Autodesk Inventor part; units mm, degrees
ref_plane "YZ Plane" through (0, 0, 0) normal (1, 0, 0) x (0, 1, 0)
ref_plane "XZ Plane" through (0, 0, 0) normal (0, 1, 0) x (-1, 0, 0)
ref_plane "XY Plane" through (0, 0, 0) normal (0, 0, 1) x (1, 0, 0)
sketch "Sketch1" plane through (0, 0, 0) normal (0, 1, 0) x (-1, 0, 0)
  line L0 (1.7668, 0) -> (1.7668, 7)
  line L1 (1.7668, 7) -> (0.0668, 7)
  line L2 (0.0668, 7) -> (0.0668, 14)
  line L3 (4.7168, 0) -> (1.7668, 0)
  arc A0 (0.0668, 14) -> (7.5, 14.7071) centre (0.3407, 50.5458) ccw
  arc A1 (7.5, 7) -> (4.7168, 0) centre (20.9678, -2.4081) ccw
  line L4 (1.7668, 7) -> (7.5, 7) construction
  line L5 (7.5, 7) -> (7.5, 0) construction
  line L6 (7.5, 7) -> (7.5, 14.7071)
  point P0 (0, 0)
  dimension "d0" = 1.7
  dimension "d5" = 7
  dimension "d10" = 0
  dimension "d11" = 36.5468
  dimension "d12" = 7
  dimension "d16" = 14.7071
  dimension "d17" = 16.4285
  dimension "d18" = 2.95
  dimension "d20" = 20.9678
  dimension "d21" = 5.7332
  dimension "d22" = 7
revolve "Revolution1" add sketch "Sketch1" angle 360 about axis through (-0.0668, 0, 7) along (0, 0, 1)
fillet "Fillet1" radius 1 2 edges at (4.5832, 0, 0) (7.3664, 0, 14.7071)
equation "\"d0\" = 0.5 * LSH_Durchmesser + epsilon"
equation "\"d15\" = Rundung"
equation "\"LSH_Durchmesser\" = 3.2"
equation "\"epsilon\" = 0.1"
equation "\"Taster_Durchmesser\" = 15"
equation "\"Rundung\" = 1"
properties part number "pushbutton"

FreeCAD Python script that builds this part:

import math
import FreeCAD as App
import Part
import Sketcher

V = App.Vector


def edges_at(feature, points):
    """Names of the edges that pass closest to the given points."""
    edges = feature.Shape.Edges
    near = lambda p: min(range(len(edges)), key=lambda i: edges[i].distToShape(Part.Vertex(*p))[0])
    return sorted({f"Edge{near(p) + 1}" for p in points})

doc = App.newDocument("Part")
body = doc.addObject("PartDesign::Body", "Body")

# Sketch on XZ plane
sketch1 = body.newObject("Sketcher::SketchObject", "Sketch")
sketch1.AttachmentSupport = (doc.getObject("XZ_Plane"), [""])
sketch1.MapMode = "FlatFace"
sketch1.addGeometry(Part.LineSegment(V(-1.8, 7, 0), V(-1.8, 0, 0)), False)
sketch1.addGeometry(Part.LineSegment(V(-1.8, 0, 0), V(-4.7, 0, 0)), False)
sketch1.addGeometry(Part.ArcOfCircle(Part.Circle(V(-21, -2.4, 0), V(0, 0, 1), 16.4), math.radians(8), math.radians(35)), False)
sketch1.addGeometry(Part.LineSegment(V(-7.5, 7, 0), V(-7.5, 14.7, 0)), False)
sketch1.addGeometry(Part.ArcOfCircle(Part.Circle(V(-0.3, 50.5, 0), V(0, 0, 1), 36.5), math.radians(-101.3), math.radians(-89.57)), False)
sketch1.addGeometry(Part.LineSegment(V(-0.1, 14, 0), V(-0.1, 7, 0)), False)
sketch1.addGeometry(Part.LineSegment(V(-0.1, 7, 0), V(-1.8, 7, 0)), False)
sketch1.addGeometry(Part.LineSegment(V(-0.1, -2.4, 0), V(-0.1, 50.5, 0)), True)  # axis
sketch1.addConstraint(Sketcher.Constraint("Coincident", 0, 2, 1, 1))
sketch1.addConstraint(Sketcher.Constraint("Coincident", 1, 2, 2, 1))
sketch1.addConstraint(Sketcher.Constraint("Coincident", 2, 2, 3, 1))
sketch1.addConstraint(Sketcher.Constraint("Coincident", 3, 2, 4, 1))
sketch1.addConstraint(Sketcher.Constraint("Coincident", 4, 2, 5, 1))
sketch1.addConstraint(Sketcher.Constraint("Coincident", 5, 2, 6, 1))
sketch1.addConstraint(Sketcher.Constraint("Coincident", 6, 2, 0, 1))
sketch1.addConstraint(Sketcher.Constraint("Vertical", 0))
sketch1.addConstraint(Sketcher.Constraint("Horizontal", 1))
sketch1.addConstraint(Sketcher.Constraint("Vertical", 3))
sketch1.addConstraint(Sketcher.Constraint("Vertical", 5))
sketch1.addConstraint(Sketcher.Constraint("Horizontal", 6))
sketch1.addConstraint(Sketcher.Constraint("Vertical", 7))
sketch1.addConstraint(Sketcher.Constraint("PointOnObject", 0, 2, -1))
sketch1.addConstraint(Sketcher.Constraint("Horizontal", 2, 2, 5, 2))
sketch1.addConstraint(Sketcher.Constraint("Horizontal", 2, 3, 7, 1))
sketch1.addConstraint(Sketcher.Constraint("Horizontal", 4, 3, 7, 2))
sketch1.addConstraint(Sketcher.Constraint("Vertical", 5, 2, 7, 1))
sketch1.addConstraint(Sketcher.Constraint("Equal", 0, 5))
sketch1.addConstraint(Sketcher.Constraint("DistanceY", 0, 2, 0, 1, 7.0))
sketch1.addConstraint(Sketcher.Constraint("DistanceX", 6, 2, 6, 1, 1.7))
sketch1.addConstraint(Sketcher.Constraint("DistanceX", 1, 2, 1, 1, 2.95))
sketch1.addConstraint(Sketcher.Constraint("Radius", 2, 16.4285))
sketch1.addConstraint(Sketcher.Constraint("DistanceY", -1, 1, 3, 2, 14.707))
sketch1.addConstraint(Sketcher.Constraint("DistanceX", 2, 3, -1, 1, 20.9678))
sketch1.addConstraint(Sketcher.Constraint("DistanceX", 2, 2, -1, 1, 7.5))
sketch1.addConstraint(Sketcher.Constraint("Radius", 4, 36.5435))
revolution = body.newObject("PartDesign::Revolution", "Revolution")
revolution.Profile = sketch1
revolution.ReferenceAxis = (sketch1, ["Axis0"])
revolution.Angle = 360
doc.recompute()

fillet = body.newObject("PartDesign::Fillet", "Fillet")
fillet.Base = (revolution, edges_at(revolution, [(4.583, 0, 0), (7.366, 0, 14.707)]))
fillet.Radius = 1

doc.recompute()
